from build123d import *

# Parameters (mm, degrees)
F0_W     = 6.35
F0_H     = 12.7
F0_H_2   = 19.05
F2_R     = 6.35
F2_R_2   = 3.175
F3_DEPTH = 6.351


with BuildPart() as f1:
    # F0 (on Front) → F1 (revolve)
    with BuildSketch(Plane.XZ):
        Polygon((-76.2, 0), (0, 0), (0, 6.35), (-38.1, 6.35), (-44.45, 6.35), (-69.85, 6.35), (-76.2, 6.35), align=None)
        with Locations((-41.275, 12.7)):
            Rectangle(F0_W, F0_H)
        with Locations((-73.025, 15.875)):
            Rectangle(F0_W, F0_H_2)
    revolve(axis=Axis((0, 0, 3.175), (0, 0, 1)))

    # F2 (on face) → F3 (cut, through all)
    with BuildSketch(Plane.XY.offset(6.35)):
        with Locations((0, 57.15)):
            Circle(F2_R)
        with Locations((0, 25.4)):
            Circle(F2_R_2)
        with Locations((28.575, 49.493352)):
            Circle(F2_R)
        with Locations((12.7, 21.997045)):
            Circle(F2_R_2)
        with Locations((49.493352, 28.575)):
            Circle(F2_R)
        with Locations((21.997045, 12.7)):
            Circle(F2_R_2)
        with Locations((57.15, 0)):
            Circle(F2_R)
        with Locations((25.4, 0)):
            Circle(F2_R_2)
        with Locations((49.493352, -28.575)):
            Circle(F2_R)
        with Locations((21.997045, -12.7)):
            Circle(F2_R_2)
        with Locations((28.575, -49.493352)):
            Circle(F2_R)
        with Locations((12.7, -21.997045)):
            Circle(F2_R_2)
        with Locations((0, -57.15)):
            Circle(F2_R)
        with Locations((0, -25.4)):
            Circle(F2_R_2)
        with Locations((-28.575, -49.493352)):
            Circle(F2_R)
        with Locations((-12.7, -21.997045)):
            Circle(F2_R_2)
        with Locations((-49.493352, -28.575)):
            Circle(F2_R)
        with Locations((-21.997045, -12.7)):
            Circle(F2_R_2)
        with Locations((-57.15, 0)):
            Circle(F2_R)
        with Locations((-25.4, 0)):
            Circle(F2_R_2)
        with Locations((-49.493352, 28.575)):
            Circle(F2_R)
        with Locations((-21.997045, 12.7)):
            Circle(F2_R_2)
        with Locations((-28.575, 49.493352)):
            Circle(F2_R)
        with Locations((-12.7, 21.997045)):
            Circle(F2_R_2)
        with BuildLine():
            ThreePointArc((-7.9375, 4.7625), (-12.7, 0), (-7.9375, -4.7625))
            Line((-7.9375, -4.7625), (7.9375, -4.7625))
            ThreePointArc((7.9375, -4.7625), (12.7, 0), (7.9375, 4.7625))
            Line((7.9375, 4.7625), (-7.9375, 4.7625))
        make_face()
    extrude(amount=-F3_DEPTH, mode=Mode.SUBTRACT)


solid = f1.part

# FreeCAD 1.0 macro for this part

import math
import FreeCAD as App
import Part
import Sketcher

V = App.Vector
Q = App.Units.Quantity

doc = App.newDocument("Part")
body = doc.addObject("PartDesign::Body", "Body")

sketch1 = body.newObject("Sketcher::SketchObject", "Sketch")
sketch1.AttachmentSupport = (doc.getObject("XZ_Plane"), [""])
sketch1.MapMode = "FlatFace"
sketch1.addGeometry([
    Part.LineSegment(V(-76.2, 0, 0), V(0, 0, 0)),
    Part.LineSegment(V(0, 0, 0), V(0, 6.35, 0)),
    Part.LineSegment(V(0, 6.35, 0), V(-38.1, 6.35, 0)),
    Part.LineSegment(V(-38.1, 6.35, 0), V(-38.1, 19.05, 0)),
    Part.LineSegment(V(-38.1, 19.05, 0), V(-44.45, 19.05, 0)),
    Part.LineSegment(V(-44.45, 19.05, 0), V(-44.45, 6.35, 0)),
    Part.LineSegment(V(-44.45, 6.35, 0), V(-69.85, 6.35, 0)),
    Part.LineSegment(V(-69.85, 6.35, 0), V(-69.85, 25.4, 0)),
    Part.LineSegment(V(-69.85, 25.4, 0), V(-76.2, 25.4, 0)),
    Part.LineSegment(V(-76.2, 25.4, 0), V(-76.2, 0, 0)),
], False)
sketch1.addConstraint([
    Sketcher.Constraint("Coincident", 0, 2, 1, 1),
    Sketcher.Constraint("Coincident", 1, 2, 2, 1),
    Sketcher.Constraint("Coincident", 2, 2, 3, 1),
    Sketcher.Constraint("Coincident", 3, 2, 4, 1),
    Sketcher.Constraint("Coincident", 4, 2, 5, 1),
    Sketcher.Constraint("Coincident", 5, 2, 6, 1),
    Sketcher.Constraint("Coincident", 6, 2, 7, 1),
    Sketcher.Constraint("Coincident", 7, 2, 8, 1),
    Sketcher.Constraint("Coincident", 8, 2, 9, 1),
    Sketcher.Constraint("Coincident", 9, 2, 0, 1),
    Sketcher.Constraint("Horizontal", 0),
    Sketcher.Constraint("Vertical", 1),
    Sketcher.Constraint("Horizontal", 2),
    Sketcher.Constraint("Vertical", 3),
    Sketcher.Constraint("Horizontal", 4),
    Sketcher.Constraint("Vertical", 5),
    Sketcher.Constraint("Horizontal", 6),
    Sketcher.Constraint("Vertical", 7),
    Sketcher.Constraint("Horizontal", 8),
    Sketcher.Constraint("Vertical", 9),
    Sketcher.Constraint("Coincident", 0, 2, -1, 1),
    Sketcher.Constraint("Horizontal", 2, 2, 5, 2),
    Sketcher.Constraint("Equal", 4, 8),
    Sketcher.Constraint("Equal", 8, 1),
    Sketcher.Constraint("Equal", 6, 9),
    Sketcher.Constraint("DistanceX", 0, 1, 0, 2, Q("3 in")),
    Sketcher.Constraint("DistanceX", 6, 2, 6, 1, Q("1 in")),
    Sketcher.Constraint("DistanceX", 2, 2, 2, 1, Q("1.5 in")),
    Sketcher.Constraint("DistanceY", 3, 1, 3, 2, Q("0.5 in")),
])
revolution = body.newObject("PartDesign::Revolution", "Revolution")
revolution.Profile = sketch1
revolution.ReferenceAxis = (sketch1, ["V_Axis"])
revolution.Angle = 360

sketch2 = body.newObject("Sketcher::SketchObject", "Sketch001")
sketch2.AttachmentSupport = (doc.getObject("XY_Plane"), [""])
sketch2.MapMode = "FlatFace"
sketch2.AttachmentOffset = App.Placement(V(0, 0, 0.25 * 25.4), App.Rotation())
sketch2.addGeometry([
    Part.Circle(V(0, 57.15, 0), V(0, 0, 1), 6.35),
    Part.Circle(V(0, 25.4, 0), V(0, 0, 1), 3.175),
    Part.Circle(V(28.575, 49.493352, 0), V(0, 0, 1), 6.35),
    Part.Circle(V(12.7, 21.997045, 0), V(0, 0, 1), 3.175),
    Part.Circle(V(49.493352, 28.575, 0), V(0, 0, 1), 6.35),
    Part.Circle(V(21.997045, 12.7, 0), V(0, 0, 1), 3.175),
    Part.Circle(V(57.15, 0, 0), V(0, 0, 1), 6.35),
    Part.Circle(V(25.4, 0, 0), V(0, 0, 1), 3.175),
    Part.Circle(V(49.493352, -28.575, 0), V(0, 0, 1), 6.35),
    Part.Circle(V(21.997045, -12.7, 0), V(0, 0, 1), 3.175),
    Part.Circle(V(28.575, -49.493352, 0), V(0, 0, 1), 6.35),
    Part.Circle(V(12.7, -21.997045, 0), V(0, 0, 1), 3.175),
    Part.Circle(V(0, -57.15, 0), V(0, 0, 1), 6.35),
    Part.Circle(V(0, -25.4, 0), V(0, 0, 1), 3.175),
    Part.Circle(V(-28.575, -49.493352, 0), V(0, 0, 1), 6.35),
    Part.Circle(V(-12.7, -21.997045, 0), V(0, 0, 1), 3.175),
    Part.Circle(V(-49.493352, -28.575, 0), V(0, 0, 1), 6.35),
    Part.Circle(V(-21.997045, -12.7, 0), V(0, 0, 1), 3.175),
    Part.Circle(V(-57.15, 0, 0), V(0, 0, 1), 6.35),
    Part.Circle(V(-25.4, 0, 0), V(0, 0, 1), 3.175),
    Part.Circle(V(-49.493352, 28.575, 0), V(0, 0, 1), 6.35),
    Part.Circle(V(-21.997045, 12.7, 0), V(0, 0, 1), 3.175),
    Part.Circle(V(-28.575, 49.493352, 0), V(0, 0, 1), 6.35),
    Part.Circle(V(-12.7, 21.997045, 0), V(0, 0, 1), 3.175),
    Part.ArcOfCircle(Part.Circle(V(-7.9375, 0, 0), V(0, 0, 1), 4.7625), math.radians(90), math.radians(270)),
    Part.LineSegment(V(-7.9375, -4.7625, 0), V(7.9375, -4.7625, 0)),
    Part.ArcOfCircle(Part.Circle(V(7.9375, 0, 0), V(0, 0, 1), 4.7625), math.radians(-90), math.radians(90)),
    Part.LineSegment(V(7.9375, 4.7625, 0), V(-7.9375, 4.7625, 0)),
], False)
sketch2.addConstraint([
    Sketcher.Constraint("Tangent", 24, 2, 25, 1),
    Sketcher.Constraint("Tangent", 25, 2, 26, 1),
    Sketcher.Constraint("Tangent", 26, 2, 27, 1),
    Sketcher.Constraint("Tangent", 27, 2, 24, 1),
    Sketcher.Constraint("Horizontal", 25),
    Sketcher.Constraint("Horizontal", 27),
    Sketcher.Constraint("Equal", 0, 2),
    Sketcher.Constraint("Equal", 1, 3),
    Sketcher.Constraint("Equal", 2, 4),
    Sketcher.Constraint("Equal", 3, 5),
    Sketcher.Constraint("Equal", 4, 6),
    Sketcher.Constraint("Equal", 5, 7),
    Sketcher.Constraint("Equal", 6, 8),
    Sketcher.Constraint("Equal", 7, 9),
    Sketcher.Constraint("Equal", 8, 10),
    Sketcher.Constraint("Equal", 9, 11),
    Sketcher.Constraint("Equal", 10, 12),
    Sketcher.Constraint("Equal", 11, 13),
    Sketcher.Constraint("Equal", 12, 14),
    Sketcher.Constraint("Equal", 13, 15),
    Sketcher.Constraint("Equal", 14, 16),
    Sketcher.Constraint("Equal", 15, 17),
    Sketcher.Constraint("Equal", 16, 18),
    Sketcher.Constraint("Equal", 17, 19),
    Sketcher.Constraint("Equal", 18, 20),
    Sketcher.Constraint("Equal", 19, 21),
    Sketcher.Constraint("Equal", 20, 22),
    Sketcher.Constraint("Equal", 21, 23),
    Sketcher.Constraint("Symmetric", 0, 3, 12, 3, -1, 1),
    Sketcher.Constraint("Symmetric", 1, 3, 13, 3, -1, 1),
    Sketcher.Constraint("Symmetric", 2, 3, 14, 3, -1, 1),
    Sketcher.Constraint("Symmetric", 3, 3, 15, 3, -1, 1),
    Sketcher.Constraint("Symmetric", 4, 3, 16, 3, -1, 1),
    Sketcher.Constraint("Symmetric", 5, 3, 17, 3, -1, 1),
    Sketcher.Constraint("Symmetric", 6, 3, 18, 3, -1, 1),
    Sketcher.Constraint("Symmetric", 7, 3, 19, 3, -1, 1),
    Sketcher.Constraint("Symmetric", 8, 3, 20, 3, -1, 1),
    Sketcher.Constraint("Symmetric", 9, 3, 21, 3, -1, 1),
    Sketcher.Constraint("Symmetric", 10, 3, 22, 3, -1, 1),
    Sketcher.Constraint("Symmetric", 11, 3, 23, 3, -1, 1),
    Sketcher.Constraint("Symmetric", 24, 3, 26, 3, -1, 1),
    Sketcher.Constraint("Symmetric", 10, 3, 14, 3, -2),
    Sketcher.Constraint("Symmetric", 11, 3, 15, 3, -2),
    Sketcher.Constraint("Symmetric", 8, 3, 16, 3, -2),
    Sketcher.Constraint("Symmetric", 9, 3, 17, 3, -2),
    Sketcher.Constraint("PointOnObject", 0, 3, -2),
    Sketcher.Constraint("PointOnObject", 1, 3, -2),
    Sketcher.Constraint("PointOnObject", 6, 3, -1),
    Sketcher.Constraint("PointOnObject", 7, 3, -1),
    Sketcher.Constraint("Diameter", 0, Q("0.5 in")),
    Sketcher.Constraint("Diameter", 1, Q("0.25 in")),
    Sketcher.Constraint("DistanceY", -1, 1, 1, 3, Q("1 in")),
    Sketcher.Constraint("DistanceX", -1, 1, 7, 3, Q("1 in")),
    Sketcher.Constraint("Radius", 24, Q("0.1875 in")),
    Sketcher.Constraint("DistanceY", 9, 3, 5, 3, Q("1 in")),
    Sketcher.Constraint("DistanceX", 15, 3, 11, 3, Q("1 in")),
    Sketcher.Constraint("DistanceX", 25, 1, 25, 2, Q("0.625 in")),
    Sketcher.Constraint("DistanceY", -1, 1, 0, 3, Q("2.25 in")),
    Sketcher.Constraint("DistanceX", -1, 1, 6, 3, Q("2.25 in")),
    Sketcher.Constraint("DistanceY", 8, 3, 4, 3, Q("2.25 in")),
    Sketcher.Constraint("DistanceX", 14, 3, 10, 3, Q("2.25 in")),
    Sketcher.Constraint("DistanceY", -1, 1, 2, 3, Q("49.493352 mm")),
    Sketcher.Constraint("DistanceY", -1, 1, 3, 3, Q("21.997045 mm")),
    Sketcher.Constraint("DistanceX", -1, 1, 4, 3, Q("49.493352 mm")),
    Sketcher.Constraint("DistanceX", -1, 1, 5, 3, Q("21.997045 mm")),
])
pocket1 = body.newObject("PartDesign::Pocket", "Pocket")
pocket1.Profile = sketch2
pocket1.Type = "ThroughAll"

doc.recompute()
